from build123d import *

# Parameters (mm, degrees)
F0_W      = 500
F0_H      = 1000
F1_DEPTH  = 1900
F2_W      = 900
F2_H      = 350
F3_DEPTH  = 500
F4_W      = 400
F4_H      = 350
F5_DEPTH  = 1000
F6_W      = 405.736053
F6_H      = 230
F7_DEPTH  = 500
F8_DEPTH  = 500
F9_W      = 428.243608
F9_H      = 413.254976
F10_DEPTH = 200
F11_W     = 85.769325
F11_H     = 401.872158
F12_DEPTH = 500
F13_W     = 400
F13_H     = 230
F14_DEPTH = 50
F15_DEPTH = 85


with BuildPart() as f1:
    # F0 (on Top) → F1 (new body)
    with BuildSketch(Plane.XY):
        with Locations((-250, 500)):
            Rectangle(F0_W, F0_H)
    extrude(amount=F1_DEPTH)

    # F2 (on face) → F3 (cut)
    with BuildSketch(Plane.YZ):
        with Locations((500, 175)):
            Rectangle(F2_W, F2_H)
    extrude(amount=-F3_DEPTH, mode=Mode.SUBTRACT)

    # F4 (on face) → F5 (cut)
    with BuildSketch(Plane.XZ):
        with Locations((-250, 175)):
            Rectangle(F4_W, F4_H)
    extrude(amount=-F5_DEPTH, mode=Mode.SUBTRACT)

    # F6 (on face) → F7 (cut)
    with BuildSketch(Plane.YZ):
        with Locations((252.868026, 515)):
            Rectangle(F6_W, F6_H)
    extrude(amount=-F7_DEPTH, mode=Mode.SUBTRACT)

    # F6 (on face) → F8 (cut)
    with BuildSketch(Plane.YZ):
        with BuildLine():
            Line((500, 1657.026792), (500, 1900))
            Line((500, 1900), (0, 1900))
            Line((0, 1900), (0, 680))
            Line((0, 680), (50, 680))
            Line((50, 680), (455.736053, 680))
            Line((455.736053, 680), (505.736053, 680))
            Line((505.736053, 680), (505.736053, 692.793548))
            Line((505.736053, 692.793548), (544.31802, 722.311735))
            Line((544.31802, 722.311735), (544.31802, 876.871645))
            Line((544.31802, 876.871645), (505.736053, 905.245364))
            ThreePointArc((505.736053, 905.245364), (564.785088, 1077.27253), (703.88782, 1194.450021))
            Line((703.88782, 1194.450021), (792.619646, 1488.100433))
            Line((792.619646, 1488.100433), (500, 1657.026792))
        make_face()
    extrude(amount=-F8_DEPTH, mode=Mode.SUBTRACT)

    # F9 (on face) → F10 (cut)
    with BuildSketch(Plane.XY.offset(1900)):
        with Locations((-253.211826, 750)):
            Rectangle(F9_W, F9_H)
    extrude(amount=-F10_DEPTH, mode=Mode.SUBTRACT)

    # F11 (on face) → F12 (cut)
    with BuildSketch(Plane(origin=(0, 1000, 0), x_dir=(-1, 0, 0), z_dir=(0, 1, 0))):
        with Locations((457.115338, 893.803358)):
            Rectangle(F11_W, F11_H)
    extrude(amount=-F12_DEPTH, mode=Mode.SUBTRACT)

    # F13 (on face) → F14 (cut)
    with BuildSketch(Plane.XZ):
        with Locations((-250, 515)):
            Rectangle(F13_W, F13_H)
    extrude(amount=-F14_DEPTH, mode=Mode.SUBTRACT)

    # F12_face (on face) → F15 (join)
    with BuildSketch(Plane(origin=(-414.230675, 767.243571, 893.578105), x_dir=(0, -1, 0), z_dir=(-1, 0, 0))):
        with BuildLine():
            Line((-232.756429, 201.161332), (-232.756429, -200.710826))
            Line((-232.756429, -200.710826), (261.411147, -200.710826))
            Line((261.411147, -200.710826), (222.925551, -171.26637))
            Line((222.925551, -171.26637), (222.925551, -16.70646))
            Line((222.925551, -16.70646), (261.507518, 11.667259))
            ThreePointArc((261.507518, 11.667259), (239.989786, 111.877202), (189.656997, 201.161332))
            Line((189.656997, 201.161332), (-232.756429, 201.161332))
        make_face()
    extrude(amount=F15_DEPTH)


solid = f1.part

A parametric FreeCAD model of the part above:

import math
import FreeCAD as App
import Part
import Sketcher
Q = App.Units.Quantity

doc = App.newDocument("Part")
body = doc.addObject("PartDesign::Body", "Body")

sketch1 = body.newObject("Sketcher::SketchObject", "Sketch")
sketch1.AttachmentSupport = (doc.getObject("XY_Plane"), [""])
sketch1.MapMode = "FlatFace"
sketch1.addGeometry([
    Part.LineSegment(App.Vector(-500, 1000, 0), App.Vector(-500, 0, 0)),
    Part.LineSegment(App.Vector(-500, 0, 0), App.Vector(0, 0, 0)),
    Part.LineSegment(App.Vector(0, 0, 0), App.Vector(0, 1000, 0)),
    Part.LineSegment(App.Vector(0, 1000, 0), App.Vector(-500, 1000, 0)),
], False)
sketch1.addConstraint([
    Sketcher.Constraint("Coincident", 0, 2, 1, 1),
    Sketcher.Constraint("Coincident", 1, 2, 2, 1),
    Sketcher.Constraint("Coincident", 2, 2, 3, 1),
    Sketcher.Constraint("Coincident", 3, 2, 0, 1),
    Sketcher.Constraint("Vertical", 0),
    Sketcher.Constraint("Horizontal", 1),
    Sketcher.Constraint("Vertical", 2),
    Sketcher.Constraint("Horizontal", 3),
    Sketcher.Constraint("Coincident", 1, 2, -1, 1),
    Sketcher.Constraint("DistanceX", 1, 1, 1, 2, Q("500 mm")),
    Sketcher.Constraint("DistanceY", 0, 2, 0, 1, Q("1000 mm")),
])
pad1 = body.newObject("PartDesign::Pad", "Pad")
pad1.Profile = sketch1
pad1.Length = 1900

sketch2 = body.newObject("Sketcher::SketchObject", "Sketch001")
sketch2.AttachmentSupport = (doc.getObject("YZ_Plane"), [""])
sketch2.MapMode = "FlatFace"
sketch2.addGeometry([
    Part.LineSegment(App.Vector(50, 350, 0), App.Vector(50, 0, 0)),
    Part.LineSegment(App.Vector(50, 0, 0), App.Vector(950, 0, 0)),
    Part.LineSegment(App.Vector(950, 0, 0), App.Vector(950, 350, 0)),
    Part.LineSegment(App.Vector(950, 350, 0), App.Vector(50, 350, 0)),
], False)
sketch2.addConstraint([
    Sketcher.Constraint("Coincident", 0, 2, 1, 1),
    Sketcher.Constraint("Coincident", 1, 2, 2, 1),
    Sketcher.Constraint("Coincident", 2, 2, 3, 1),
    Sketcher.Constraint("Coincident", 3, 2, 0, 1),
    Sketcher.Constraint("Vertical", 0),
    Sketcher.Constraint("Horizontal", 1),
    Sketcher.Constraint("Vertical", 2),
    Sketcher.Constraint("Horizontal", 3),
    Sketcher.Constraint("PointOnObject", 0, 2, -1),
    Sketcher.Constraint("DistanceX", 1, 1, 1, 2, Q("900 mm")),
    Sketcher.Constraint("DistanceY", 0, 2, 0, 1, Q("350 mm")),
    Sketcher.Constraint("DistanceX", -1, 1, 0, 2, Q("50 mm")),
])
pocket1 = body.newObject("PartDesign::Pocket", "Pocket")
pocket1.Profile = sketch2
pocket1.Length = 500

sketch3 = body.newObject("Sketcher::SketchObject", "Sketch002")
sketch3.AttachmentSupport = (doc.getObject("XZ_Plane"), [""])
sketch3.MapMode = "FlatFace"
sketch3.addGeometry([
    Part.LineSegment(App.Vector(-450, 350, 0), App.Vector(-450, 0, 0)),
    Part.LineSegment(App.Vector(-450, 0, 0), App.Vector(-50, 0, 0)),
    Part.LineSegment(App.Vector(-50, 0, 0), App.Vector(-50, 350, 0)),
    Part.LineSegment(App.Vector(-50, 350, 0), App.Vector(-450, 350, 0)),
], False)
sketch3.addConstraint([
    Sketcher.Constraint("Coincident", 0, 2, 1, 1),
    Sketcher.Constraint("Coincident", 1, 2, 2, 1),
    Sketcher.Constraint("Coincident", 2, 2, 3, 1),
    Sketcher.Constraint("Coincident", 3, 2, 0, 1),
    Sketcher.Constraint("Vertical", 0),
    Sketcher.Constraint("Horizontal", 1),
    Sketcher.Constraint("Vertical", 2),
    Sketcher.Constraint("Horizontal", 3),
    Sketcher.Constraint("PointOnObject", 0, 2, -1),
    Sketcher.Constraint("DistanceX", 1, 1, 1, 2, Q("400 mm")),
    Sketcher.Constraint("DistanceY", 0, 2, 0, 1, Q("350 mm")),
    Sketcher.Constraint("DistanceX", 0, 2, -1, 1, Q("450 mm")),
])
pocket2 = body.newObject("PartDesign::Pocket", "Pocket001")
pocket2.Profile = sketch3
pocket2.Length = 1000

sketch4 = body.newObject("Sketcher::SketchObject", "Sketch003")
sketch4.AttachmentSupport = (doc.getObject("YZ_Plane"), [""])
sketch4.MapMode = "FlatFace"
sketch4.addGeometry([
    Part.LineSegment(App.Vector(50, 630, 0), App.Vector(50, 400, 0)),
    Part.LineSegment(App.Vector(50, 400, 0), App.Vector(456, 400, 0)),
    Part.LineSegment(App.Vector(456, 400, 0), App.Vector(456, 630, 0)),
    Part.LineSegment(App.Vector(456, 630, 0), App.Vector(50, 630, 0)),
], False)
sketch4.addConstraint([
    Sketcher.Constraint("Coincident", 0, 2, 1, 1),
    Sketcher.Constraint("Coincident", 1, 2, 2, 1),
    Sketcher.Constraint("Coincident", 2, 2, 3, 1),
    Sketcher.Constraint("Coincident", 3, 2, 0, 1),
    Sketcher.Constraint("Vertical", 0),
    Sketcher.Constraint("Horizontal", 1),
    Sketcher.Constraint("Vertical", 2),
    Sketcher.Constraint("Horizontal", 3),
    Sketcher.Constraint("DistanceY", 0, 2, 0, 1, Q("230 mm")),
    Sketcher.Constraint("DistanceX", -1, 1, 0, 2, Q("50 mm")),
    Sketcher.Constraint("DistanceY", -1, 1, 0, 2, Q("400 mm")),
    Sketcher.Constraint("DistanceX", 1, 1, 1, 2, Q("405.736053 mm")),
])
pocket3 = body.newObject("PartDesign::Pocket", "Pocket002")
pocket3.Profile = sketch4
pocket3.Length = 500

sketch5 = body.newObject("Sketcher::SketchObject", "Sketch004")
sketch5.AttachmentSupport = (doc.getObject("YZ_Plane"), [""])
sketch5.MapMode = "FlatFace"
sketch5.addGeometry([
    Part.LineSegment(App.Vector(500, 1657, 0), App.Vector(500, 1900, 0)),
    Part.LineSegment(App.Vector(500, 1900, 0), App.Vector(0, 1900, 0)),
    Part.LineSegment(App.Vector(0, 1900, 0), App.Vector(0, 680, 0)),
    Part.LineSegment(App.Vector(0, 680, 0), App.Vector(506, 680, 0)),
    Part.LineSegment(App.Vector(506, 680, 0), App.Vector(506, 693, 0)),
    Part.LineSegment(App.Vector(506, 693, 0), App.Vector(544, 722, 0)),
    Part.LineSegment(App.Vector(544, 722, 0), App.Vector(544, 877, 0)),
    Part.LineSegment(App.Vector(544, 877, 0), App.Vector(506, 905, 0)),
    Part.ArcOfCircle(Part.Circle(App.Vector(846, 885, 0), App.Vector(0, 0, 1), 341), math.radians(115), math.radians(177)),
    Part.LineSegment(App.Vector(704, 1194, 0), App.Vector(793, 1488, 0)),
    Part.LineSegment(App.Vector(793, 1488, 0), App.Vector(500, 1657, 0)),
], False)
sketch5.addConstraint([
    Sketcher.Constraint("Coincident", 0, 2, 1, 1),
    Sketcher.Constraint("Coincident", 1, 2, 2, 1),
    Sketcher.Constraint("Coincident", 2, 2, 3, 1),
    Sketcher.Constraint("Coincident", 3, 2, 4, 1),
    Sketcher.Constraint("Coincident", 4, 2, 5, 1),
    Sketcher.Constraint("Coincident", 5, 2, 6, 1),
    Sketcher.Constraint("Coincident", 6, 2, 7, 1),
    Sketcher.Constraint("Coincident", 7, 2, 8, 2),
    Sketcher.Constraint("Coincident", 8, 1, 9, 1),
    Sketcher.Constraint("Coincident", 9, 2, 10, 1),
    Sketcher.Constraint("Coincident", 10, 2, 0, 1),
    Sketcher.Constraint("Vertical", 0),
    Sketcher.Constraint("Horizontal", 1),
    Sketcher.Constraint("Vertical", 2),
    Sketcher.Constraint("Horizontal", 3),
    Sketcher.Constraint("Vertical", 4),
    Sketcher.Constraint("Vertical", 6),
    Sketcher.Constraint("PointOnObject", 1, 2, -2),
    Sketcher.Constraint("Vertical", 4, 2, 7, 2),
    Sketcher.Constraint("DistanceX", 1, 2, 1, 1, Q("500 mm")),
    Sketcher.Constraint("DistanceY", 2, 2, 2, 1, Q("1220 mm")),
    Sketcher.Constraint("DistanceY", -1, 1, 0, 2, Q("1900 mm")),
    Sketcher.Constraint("Radius", 8, Q("340.885954 mm")),
    Sketcher.Constraint("DistanceY", 0, 1, 0, 2, Q("242.973208 mm")),
    Sketcher.Constraint("DistanceY", 6, 1, 6, 2, Q("154.55991 mm")),
    Sketcher.Constraint("DistanceX", 6, 2, 8, 1, Q("159.5698 mm")),
    Sketcher.Constraint("Distance", 7, Q("47.891921 mm")),
    Sketcher.Constraint("DistanceX", 3, 1, 3, 2, Q("505.736053 mm")),
    Sketcher.Constraint("DistanceY", 4, 1, 4, 2, Q("12.793548 mm")),
    Sketcher.Constraint("DistanceX", -1, 1, 8, 3, Q("845.996111 mm")),
    Sketcher.Constraint("DistanceY", -1, 1, 8, 3, Q("884.59769 mm")),
    Sketcher.Constraint("DistanceX", -1, 1, 5, 2, Q("544.31802 mm")),
    Sketcher.Constraint("DistanceY", 7, 2, 9, 2, Q("582.855069 mm")),
    Sketcher.Constraint("Distance", 9, Q("306.763592 mm")),
])
pocket4 = body.newObject("PartDesign::Pocket", "Pocket003")
pocket4.Profile = sketch5
pocket4.Length = 500

sketch6 = body.newObject("Sketcher::SketchObject", "Sketch005")
sketch6.AttachmentSupport = (doc.getObject("XY_Plane"), [""])
sketch6.MapMode = "FlatFace"
sketch6.AttachmentOffset = App.Placement(App.Vector(0, 0, 1900), App.Rotation())
sketch6.addGeometry([
    Part.LineSegment(App.Vector(-467, 957, 0), App.Vector(-467, 543, 0)),
    Part.LineSegment(App.Vector(-467, 543, 0), App.Vector(-39, 543, 0)),
    Part.LineSegment(App.Vector(-39, 543, 0), App.Vector(-39, 957, 0)),
    Part.LineSegment(App.Vector(-39, 957, 0), App.Vector(-467, 957, 0)),
], False)
sketch6.addConstraint([
    Sketcher.Constraint("Coincident", 0, 2, 1, 1),
    Sketcher.Constraint("Coincident", 1, 2, 2, 1),
    Sketcher.Constraint("Coincident", 2, 2, 3, 1),
    Sketcher.Constraint("Coincident", 3, 2, 0, 1),
    Sketcher.Constraint("Vertical", 0),
    Sketcher.Constraint("Horizontal", 1),
    Sketcher.Constraint("Vertical", 2),
    Sketcher.Constraint("Horizontal", 3),
    Sketcher.Constraint("DistanceX", 1, 1, 1, 2, Q("428.243608 mm")),
    Sketcher.Constraint("DistanceY", 0, 2, 0, 1, Q("413.254976 mm")),
    Sketcher.Constraint("DistanceX", 0, 2, -1, 1, Q("467.33363 mm")),
    Sketcher.Constraint("DistanceY", -1, 1, 0, 2, Q("543.372512 mm")),
])
pocket5 = body.newObject("PartDesign::Pocket", "Pocket004")
pocket5.Profile = sketch6
pocket5.Length = 200

sketch7 = body.newObject("Sketcher::SketchObject", "Sketch006")
sketch7.AttachmentSupport = (doc.getObject("XZ_Plane"), [""])
sketch7.MapMode = "FlatFace"
sketch7.AttachmentOffset = App.Placement(App.Vector(0, 0, -1000), App.Rotation())
sketch7.addGeometry([
    Part.LineSegment(App.Vector(-414, 1095, 0), App.Vector(-414, 693, 0)),
    Part.LineSegment(App.Vector(-414, 693, 0), App.Vector(-500, 693, 0)),
    Part.LineSegment(App.Vector(-500, 693, 0), App.Vector(-500, 1095, 0)),
    Part.LineSegment(App.Vector(-500, 1095, 0), App.Vector(-414, 1095, 0)),
], False)
sketch7.addConstraint([
    Sketcher.Constraint("Coincident", 0, 2, 1, 1),
    Sketcher.Constraint("Coincident", 1, 2, 2, 1),
    Sketcher.Constraint("Coincident", 2, 2, 3, 1),
    Sketcher.Constraint("Coincident", 3, 2, 0, 1),
    Sketcher.Constraint("Vertical", 0),
    Sketcher.Constraint("Horizontal", 1),
    Sketcher.Constraint("Vertical", 2),
    Sketcher.Constraint("Horizontal", 3),
    Sketcher.Constraint("DistanceX", 1, 2, -1, 1, Q("500 mm")),
    Sketcher.Constraint("DistanceX", 1, 2, 1, 1, Q("85.769325 mm")),
    Sketcher.Constraint("DistanceY", 0, 2, 0, 1, Q("401.872158 mm")),
    Sketcher.Constraint("DistanceY", -1, 1, 0, 2, Q("692.867279 mm")),
])
pocket6 = body.newObject("PartDesign::Pocket", "Pocket005")
pocket6.Profile = sketch7
pocket6.Length = 500
pocket6.Reversed = True

sketch8 = body.newObject("Sketcher::SketchObject", "Sketch007")
sketch8.AttachmentSupport = (doc.getObject("XZ_Plane"), [""])
sketch8.MapMode = "FlatFace"
sketch8.addGeometry([
    Part.LineSegment(App.Vector(-450, 630, 0), App.Vector(-450, 400, 0)),
    Part.LineSegment(App.Vector(-450, 400, 0), App.Vector(-50, 400, 0)),
    Part.LineSegment(App.Vector(-50, 400, 0), App.Vector(-50, 630, 0)),
    Part.LineSegment(App.Vector(-50, 630, 0), App.Vector(-450, 630, 0)),
], False)
sketch8.addConstraint([
    Sketcher.Constraint("Coincident", 0, 2, 1, 1),
    Sketcher.Constraint("Coincident", 1, 2, 2, 1),
    Sketcher.Constraint("Coincident", 2, 2, 3, 1),
    Sketcher.Constraint("Coincident", 3, 2, 0, 1),
    Sketcher.Constraint("Vertical", 0),
    Sketcher.Constraint("Horizontal", 1),
    Sketcher.Constraint("Vertical", 2),
    Sketcher.Constraint("Horizontal", 3),
    Sketcher.Constraint("DistanceX", 1, 1, 1, 2, Q("400 mm")),
    Sketcher.Constraint("DistanceY", 0, 2, 0, 1, Q("230 mm")),
    Sketcher.Constraint("DistanceX", 0, 2, -1, 1, Q("450 mm")),
    Sketcher.Constraint("DistanceY", -1, 1, 0, 2, Q("400 mm")),
])
pocket7 = body.newObject("PartDesign::Pocket", "Pocket006")
pocket7.Profile = sketch8
pocket7.Length = 50

sketch9 = body.newObject("Sketcher::SketchObject", "Sketch008")
sketch9.AttachmentSupport = (doc.getObject("YZ_Plane"), [""])
sketch9.MapMode = "FlatFace"
sketch9.AttachmentOffset = App.Placement(App.Vector(0, 0, -414.230675), App.Rotation())
sketch9.addGeometry([
    Part.LineSegment(App.Vector(1000, 1095, 0), App.Vector(1000, 693, 0)),
    Part.LineSegment(App.Vector(1000, 693, 0), App.Vector(506, 693, 0)),
    Part.LineSegment(App.Vector(506, 693, 0), App.Vector(544, 722, 0)),
    Part.LineSegment(App.Vector(544, 722, 0), App.Vector(544, 877, 0)),
    Part.LineSegment(App.Vector(544, 877, 0), App.Vector(506, 905, 0)),
    Part.ArcOfCircle(Part.Circle(App.Vector(846, 885, 0), App.Vector(0, 0, 1), 341), math.radians(142), math.radians(177)),
    Part.LineSegment(App.Vector(578, 1095, 0), App.Vector(1000, 1095, 0)),
], False)
sketch9.addConstraint([
    Sketcher.Constraint("Coincident", 0, 2, 1, 1),
    Sketcher.Constraint("Coincident", 1, 2, 2, 1),
    Sketcher.Constraint("Coincident", 2, 2, 3, 1),
    Sketcher.Constraint("Coincident", 3, 2, 4, 1),
    Sketcher.Constraint("Coincident", 4, 2, 5, 2),
    Sketcher.Constraint("Coincident", 5, 1, 6, 1),
    Sketcher.Constraint("Coincident", 6, 2, 0, 1),
    Sketcher.Constraint("Vertical", 0),
    Sketcher.Constraint("Horizontal", 1),
    Sketcher.Constraint("Vertical", 3),
    Sketcher.Constraint("Horizontal", 6),
    Sketcher.Constraint("DistanceX", -1, 1, 0, 2, Q("1000 mm")),
    Sketcher.Constraint("Radius", 5, Q("340.885938 mm")),
    Sketcher.Constraint("DistanceY", 3, 1, 3, 2, Q("154.55991 mm")),
    Sketcher.Constraint("Distance", 4, Q("47.891921 mm")),
    Sketcher.Constraint("DistanceX", 1, 2, 1, 1, Q("494.167576 mm")),
    Sketcher.Constraint("DistanceX", 6, 1, 6, 2, Q("422.413426 mm")),
    Sketcher.Constraint("DistanceY", 0, 2, 0, 1, Q("401.872158 mm")),
    Sketcher.Constraint("DistanceY", -1, 1, 0, 2, Q("692.867279 mm")),
    Sketcher.Constraint("DistanceX", -1, 1, 2, 2, Q("544.31802 mm")),
    Sketcher.Constraint("DistanceX", 1, 2, 5, 3, Q("340.163671 mm")),
    Sketcher.Constraint("DistanceY", 2, 2, 5, 3, Q("162.285961 mm")),
])
pad2 = body.newObject("PartDesign::Pad", "Pad001")
pad2.Profile = sketch9
pad2.Length = 85
pad2.Reversed = True

doc.recompute()
